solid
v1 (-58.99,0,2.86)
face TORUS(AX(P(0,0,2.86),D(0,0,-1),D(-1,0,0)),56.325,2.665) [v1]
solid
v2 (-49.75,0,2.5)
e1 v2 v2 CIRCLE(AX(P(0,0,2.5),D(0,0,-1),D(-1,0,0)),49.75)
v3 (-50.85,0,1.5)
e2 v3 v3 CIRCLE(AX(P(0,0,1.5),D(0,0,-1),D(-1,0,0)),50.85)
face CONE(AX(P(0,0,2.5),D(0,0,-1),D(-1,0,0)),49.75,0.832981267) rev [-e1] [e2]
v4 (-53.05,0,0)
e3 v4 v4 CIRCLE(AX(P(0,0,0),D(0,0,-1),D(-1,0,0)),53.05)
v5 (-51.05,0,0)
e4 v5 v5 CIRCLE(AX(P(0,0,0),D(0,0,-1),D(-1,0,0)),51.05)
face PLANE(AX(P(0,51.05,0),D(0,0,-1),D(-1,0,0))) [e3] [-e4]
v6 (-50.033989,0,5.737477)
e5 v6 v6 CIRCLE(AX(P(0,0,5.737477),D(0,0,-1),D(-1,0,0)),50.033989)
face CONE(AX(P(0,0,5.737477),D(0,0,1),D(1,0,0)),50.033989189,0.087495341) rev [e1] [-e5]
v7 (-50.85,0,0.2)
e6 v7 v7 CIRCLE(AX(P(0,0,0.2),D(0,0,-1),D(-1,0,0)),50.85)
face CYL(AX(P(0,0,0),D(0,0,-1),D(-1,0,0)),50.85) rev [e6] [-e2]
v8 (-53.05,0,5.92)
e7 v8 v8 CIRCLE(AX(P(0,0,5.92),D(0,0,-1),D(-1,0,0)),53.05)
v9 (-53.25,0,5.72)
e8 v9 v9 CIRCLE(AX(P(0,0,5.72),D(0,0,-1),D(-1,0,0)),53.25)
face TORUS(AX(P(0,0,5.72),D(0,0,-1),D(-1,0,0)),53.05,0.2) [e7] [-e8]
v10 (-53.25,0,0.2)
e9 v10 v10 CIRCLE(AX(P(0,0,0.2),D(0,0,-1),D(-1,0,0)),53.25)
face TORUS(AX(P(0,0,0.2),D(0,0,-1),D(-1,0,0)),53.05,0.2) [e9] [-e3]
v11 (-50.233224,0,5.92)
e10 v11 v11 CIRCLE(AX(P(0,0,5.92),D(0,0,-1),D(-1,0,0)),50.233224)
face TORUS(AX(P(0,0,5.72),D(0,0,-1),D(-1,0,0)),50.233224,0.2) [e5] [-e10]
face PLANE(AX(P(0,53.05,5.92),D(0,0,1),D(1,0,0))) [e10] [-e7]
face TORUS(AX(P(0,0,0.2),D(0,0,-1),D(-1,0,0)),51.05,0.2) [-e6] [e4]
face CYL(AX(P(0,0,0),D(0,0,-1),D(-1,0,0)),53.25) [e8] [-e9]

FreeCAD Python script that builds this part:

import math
import FreeCAD as App
import Part
import Sketcher
from FreeCAD import Vector

doc = App.newDocument("Part")
params = doc.addObject("Spreadsheet::Sheet", "Params")
for row, (alias, value) in enumerate([
    ("sketch1_radius", "0.2 mm"),
    ("sketch1_width", "2 mm"),
    ("sketch1_height", "1.3 mm"),
    ("sketch1_height2", "5.52 mm"),
    ("revolution_angle", "360 deg"),
    ("sketch2_diameter", "5.33 mm"),
    ("revolution2_angle", "360 deg"),
], start=1):
    params.set(f"A{row}", alias)
    params.set(f"B{row}", "=" + value)
    params.setAlias(f"B{row}", alias)

body = doc.addObject("PartDesign::Body", "Body")

# Sketch on YZ plane
sketch1 = body.newObject("Sketcher::SketchObject", "Sketch")
sketch1.AttachmentSupport = (doc.getObject("YZ_Plane"), [""])
sketch1.MapMode = "FlatFace"
sketch1.addGeometry([
    Part.LineSegment(Vector(51.05, 0, 0), Vector(53.05, 0, 0)),  # 0
    Part.ArcOfCircle(Part.Circle(Vector(53.05, 0.2, 0), Vector(0, 0, 1), 0.2), math.radians(-90), math.radians(0)),  # 1
    Part.LineSegment(Vector(53.25, 0.2, 0), Vector(53.25, 5.72, 0)),  # 2
    Part.ArcOfCircle(Part.Circle(Vector(53.05, 5.72, 0), Vector(0, 0, 1), 0.2), math.radians(0), math.radians(90)),  # 3
    Part.LineSegment(Vector(53.05, 5.92, 0), Vector(50.233224, 5.92, 0)),  # 4
    Part.ArcOfCircle(Part.Circle(Vector(50.233224, 5.72, 0), Vector(0, 0, 1), 0.2), math.radians(90), math.radians(174.986886)),  # 5
    Part.LineSegment(Vector(50.033989, 5.737477, 0), Vector(49.75, 2.5, 0)),  # 6
    Part.LineSegment(Vector(49.75, 2.5, 0), Vector(50.85, 1.5, 0)),  # 7
    Part.LineSegment(Vector(50.85, 1.5, 0), Vector(50.85, 0.2, 0)),  # 8
    Part.ArcOfCircle(Part.Circle(Vector(51.05, 0.2, 0), Vector(0, 0, 1), 0.2), math.radians(-180), math.radians(-90)),  # 9
], False)
sketch1.addConstraint([
    Sketcher.Constraint("Tangent", 0, 2, 1, 1),
    Sketcher.Constraint("Tangent", 1, 2, 2, 1),
    Sketcher.Constraint("Tangent", 2, 2, 3, 1),
    Sketcher.Constraint("Tangent", 3, 2, 4, 1),
    Sketcher.Constraint("Tangent", 4, 2, 5, 1),
    Sketcher.Constraint("Tangent", 5, 2, 6, 1),
    Sketcher.Constraint("Coincident", 6, 2, 7, 1),
    Sketcher.Constraint("Coincident", 7, 2, 8, 1),
    Sketcher.Constraint("Tangent", 8, 2, 9, 1),
    Sketcher.Constraint("Tangent", 9, 2, 0, 1),
    Sketcher.Constraint("Horizontal", 0),
    Sketcher.Constraint("Vertical", 2),
    Sketcher.Constraint("Horizontal", 4),
    Sketcher.Constraint("Vertical", 8),
    Sketcher.Constraint("Equal", 1, 3),
    Sketcher.Constraint("Equal", 3, 5),
    Sketcher.Constraint("Equal", 5, 9),
    Sketcher.Constraint("PointOnObject", 0, 2, -1),
    Sketcher.Constraint("Radius", 1, 0.2),
    Sketcher.Constraint("DistanceX", 0, 1, 0, 2, 2.0),
    Sketcher.Constraint("DistanceY", 8, 2, 8, 1, 1.3),
    Sketcher.Constraint("DistanceY", 7, 2, 6, 2, 1.0),
    Sketcher.Constraint("DistanceY", 2, 1, 2, 2, 5.52),
    Sketcher.Constraint("DistanceX", 6, 2, 9, 3, 1.3),
    Sketcher.Constraint("DistanceX", -1, 1, 1, 3, 53.05),
    Sketcher.Constraint("Distance", 6, 3.249909),
])
sketch1.setExpression("Constraints[18]", "Params.sketch1_radius")
sketch1.setExpression("Constraints[19]", "Params.sketch1_width")
sketch1.setExpression("Constraints[20]", "Params.sketch1_height")
sketch1.setExpression("Constraints[22]", "Params.sketch1_height2")
revolution = body.newObject("PartDesign::Revolution", "Revolution")
revolution.Profile = sketch1
revolution.ReferenceAxis = (sketch1, ["V_Axis"])
revolution.setExpression("Angle", "Params.revolution_angle")
body2 = doc.addObject("PartDesign::Body", "Body001")

# Sketch on YZ plane
sketch2 = body2.newObject("Sketcher::SketchObject", "Sketch001")
sketch2.AttachmentSupport = (doc.getObject("YZ_Plane001"), [""])
sketch2.MapMode = "FlatFace"
sketch2.addGeometry(Part.Circle(Vector(56.325, 2.86, 0), Vector(0, 0, 1), 2.665), False)
sketch2.addConstraint([
    Sketcher.Constraint("Diameter", 0, 5.33),
    Sketcher.Constraint("DistanceY", -1, 1, 0, 3, 2.86),
    Sketcher.Constraint("DistanceX", -1, 1, 0, 3, 56.325),
])
sketch2.setExpression("Constraints[0]", "Params.sketch2_diameter")
revolution2 = body2.newObject("PartDesign::Revolution", "Revolution001")
revolution2.Profile = sketch2
revolution2.ReferenceAxis = (sketch2, ["V_Axis"])
revolution2.setExpression("Angle", "Params.revolution2_angle")

doc.recompute()
